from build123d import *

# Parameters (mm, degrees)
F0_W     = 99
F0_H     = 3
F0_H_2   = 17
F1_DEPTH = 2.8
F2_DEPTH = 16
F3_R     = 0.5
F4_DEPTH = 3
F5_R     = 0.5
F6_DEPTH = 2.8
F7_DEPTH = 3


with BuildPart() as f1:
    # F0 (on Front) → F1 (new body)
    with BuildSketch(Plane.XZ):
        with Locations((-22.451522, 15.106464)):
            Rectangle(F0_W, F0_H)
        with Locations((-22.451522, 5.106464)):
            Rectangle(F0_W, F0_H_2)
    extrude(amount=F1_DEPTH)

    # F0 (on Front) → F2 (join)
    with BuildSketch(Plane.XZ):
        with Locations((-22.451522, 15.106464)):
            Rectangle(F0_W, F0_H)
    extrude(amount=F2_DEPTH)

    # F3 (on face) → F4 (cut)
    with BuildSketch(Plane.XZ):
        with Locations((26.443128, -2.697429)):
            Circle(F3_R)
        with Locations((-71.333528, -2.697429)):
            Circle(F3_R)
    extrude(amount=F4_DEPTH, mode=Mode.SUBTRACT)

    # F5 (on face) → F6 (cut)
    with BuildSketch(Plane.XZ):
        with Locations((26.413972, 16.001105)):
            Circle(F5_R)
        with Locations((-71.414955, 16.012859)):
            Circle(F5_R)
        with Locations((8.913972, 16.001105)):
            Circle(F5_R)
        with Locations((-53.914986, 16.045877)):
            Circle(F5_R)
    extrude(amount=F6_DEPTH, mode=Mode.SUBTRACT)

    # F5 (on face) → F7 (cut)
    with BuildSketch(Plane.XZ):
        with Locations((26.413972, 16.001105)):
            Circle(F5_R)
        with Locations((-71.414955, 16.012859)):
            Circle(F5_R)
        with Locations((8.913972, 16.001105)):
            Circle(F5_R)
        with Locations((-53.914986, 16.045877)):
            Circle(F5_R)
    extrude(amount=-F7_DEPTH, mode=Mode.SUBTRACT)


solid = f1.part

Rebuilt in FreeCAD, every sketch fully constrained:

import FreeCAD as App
import Part
import Sketcher
from FreeCAD import Vector
Q = App.Units.Quantity

doc = App.newDocument("Part")
body = doc.addObject("PartDesign::Body", "Body")

sketch1 = body.newObject("Sketcher::SketchObject", "Sketch")
sketch1.AttachmentSupport = (doc.getObject("XZ_Plane"), [""])
sketch1.MapMode = "FlatFace"
sketch1.addGeometry(Part.LineSegment(Vector(-71.951522, 16.606464, 0), Vector(-71.951522, -3.393536, 0)), False)
sketch1.addGeometry(Part.LineSegment(Vector(-71.951522, -3.393536, 0), Vector(27.048478, -3.393536, 0)), False)
sketch1.addGeometry(Part.LineSegment(Vector(27.048478, -3.393536, 0), Vector(27.048478, 16.606464, 0)), False)
sketch1.addGeometry(Part.LineSegment(Vector(27.048478, 16.606464, 0), Vector(-71.951522, 16.606464, 0)), False)
sketch1.addConstraint(Sketcher.Constraint("Coincident", 0, 2, 1, 1))
sketch1.addConstraint(Sketcher.Constraint("Coincident", 1, 2, 2, 1))
sketch1.addConstraint(Sketcher.Constraint("Coincident", 2, 2, 3, 1))
sketch1.addConstraint(Sketcher.Constraint("Coincident", 3, 2, 0, 1))
sketch1.addConstraint(Sketcher.Constraint("Vertical", 0))
sketch1.addConstraint(Sketcher.Constraint("Horizontal", 1))
sketch1.addConstraint(Sketcher.Constraint("Vertical", 2))
sketch1.addConstraint(Sketcher.Constraint("Horizontal", 3))
sketch1.addConstraint(Sketcher.Constraint("DistanceX", 1, 1, 1, 2, Q("99 mm")))
sketch1.addConstraint(Sketcher.Constraint("DistanceY", 0, 2, 0, 1, Q("20 mm")))
sketch1.addConstraint(Sketcher.Constraint("DistanceX", 0, 2, -1, 1, Q("71.951522 mm")))
sketch1.addConstraint(Sketcher.Constraint("DistanceY", 0, 2, -1, 1, Q("3.393536 mm")))
pad1 = body.newObject("PartDesign::Pad", "Pad")
pad1.Profile = sketch1
pad1.Length = 2.8

sketch2 = body.newObject("Sketcher::SketchObject", "Sketch001")
sketch2.AttachmentSupport = (doc.getObject("XZ_Plane"), [""])
sketch2.MapMode = "FlatFace"
sketch2.addGeometry(Part.LineSegment(Vector(-71.951522, 16.606464, 0), Vector(-71.951522, 13.606464, 0)), False)
sketch2.addGeometry(Part.LineSegment(Vector(-71.951522, 13.606464, 0), Vector(27.048478, 13.606464, 0)), False)
sketch2.addGeometry(Part.LineSegment(Vector(27.048478, 13.606464, 0), Vector(27.048478, 16.606464, 0)), False)
sketch2.addGeometry(Part.LineSegment(Vector(27.048478, 16.606464, 0), Vector(-71.951522, 16.606464, 0)), False)
sketch2.addConstraint(Sketcher.Constraint("Coincident", 0, 2, 1, 1))
sketch2.addConstraint(Sketcher.Constraint("Coincident", 1, 2, 2, 1))
sketch2.addConstraint(Sketcher.Constraint("Coincident", 2, 2, 3, 1))
sketch2.addConstraint(Sketcher.Constraint("Coincident", 3, 2, 0, 1))
sketch2.addConstraint(Sketcher.Constraint("Vertical", 0))
sketch2.addConstraint(Sketcher.Constraint("Horizontal", 1))
sketch2.addConstraint(Sketcher.Constraint("Vertical", 2))
sketch2.addConstraint(Sketcher.Constraint("Horizontal", 3))
sketch2.addConstraint(Sketcher.Constraint("DistanceX", 1, 1, 1, 2, Q("99 mm")))
sketch2.addConstraint(Sketcher.Constraint("DistanceY", 0, 2, 0, 1, Q("3 mm")))
sketch2.addConstraint(Sketcher.Constraint("DistanceX", 0, 2, -1, 1, Q("71.951522 mm")))
sketch2.addConstraint(Sketcher.Constraint("DistanceY", -1, 1, 0, 2, Q("13.606464 mm")))
pad2 = body.newObject("PartDesign::Pad", "Pad001")
pad2.Profile = sketch2
pad2.Length = 16

sketch3 = body.newObject("Sketcher::SketchObject", "Sketch002")
sketch3.AttachmentSupport = (doc.getObject("XZ_Plane"), [""])
sketch3.MapMode = "FlatFace"
sketch3.addGeometry(Part.Circle(Vector(26.443128, -2.697429, 0), Vector(0, 0, 1), 0.5), False)
sketch3.addGeometry(Part.Circle(Vector(-71.333528, -2.697429, 0), Vector(0, 0, 1), 0.5), False)
sketch3.addConstraint(Sketcher.Constraint("Equal", 0, 1))
sketch3.addConstraint(Sketcher.Constraint("Horizontal", 0, 3, 1, 3))
sketch3.addConstraint(Sketcher.Constraint("Diameter", 0, Q("1 mm")))
sketch3.addConstraint(Sketcher.Constraint("DistanceX", -1, 1, 0, 3, Q("26.443128 mm")))
sketch3.addConstraint(Sketcher.Constraint("DistanceY", 0, 3, -1, 1, Q("2.697429 mm")))
sketch3.addConstraint(Sketcher.Constraint("DistanceX", 1, 3, -1, 1, Q("71.333528 mm")))
pocket1 = body.newObject("PartDesign::Pocket", "Pocket")
pocket1.Profile = sketch3
pocket1.Length = 3
pocket1.Reversed = True

sketch4 = body.newObject("Sketcher::SketchObject", "Sketch003")
sketch4.AttachmentSupport = (doc.getObject("XZ_Plane"), [""])
sketch4.MapMode = "FlatFace"
sketch4.addGeometry(Part.Circle(Vector(26.413972, 16.001105, 0), Vector(0, 0, 1), 0.5), False)
sketch4.addGeometry(Part.Circle(Vector(-71.414955, 16.012859, 0), Vector(0, 0, 1), 0.5), False)
sketch4.addGeometry(Part.Circle(Vector(8.913972, 16.001105, 0), Vector(0, 0, 1), 0.5), False)
sketch4.addGeometry(Part.Circle(Vector(-53.914986, 16.045877, 0), Vector(0, 0, 1), 0.5), False)
sketch4.addConstraint(Sketcher.Constraint("Equal", 0, 1))
sketch4.addConstraint(Sketcher.Constraint("Equal", 1, 2))
sketch4.addConstraint(Sketcher.Constraint("Equal", 2, 3))
sketch4.addConstraint(Sketcher.Constraint("Horizontal", 0, 3, 2, 3))
sketch4.addConstraint(Sketcher.Constraint("Diameter", 0, Q("1 mm")))
sketch4.addConstraint(Sketcher.Constraint("DistanceX", 2, 3, 0, 3, Q("17.5 mm")))
sketch4.addConstraint(Sketcher.Constraint("DistanceY", -1, 1, 1, 3, Q("16.012859 mm")))
sketch4.addConstraint(Sketcher.Constraint("DistanceX", -1, 1, 2, 3, Q("8.913972 mm")))
sketch4.addConstraint(Sketcher.Constraint("DistanceX", 1, 3, 3, 3, Q("17.499969 mm")))
sketch4.addConstraint(Sketcher.Constraint("DistanceY", 1, 3, 3, 3, Q("0.033018 mm")))
sketch4.addConstraint(Sketcher.Constraint("DistanceX", 3, 3, 0, 3, Q("80.328958 mm")))
sketch4.addConstraint(Sketcher.Constraint("DistanceY", -1, 1, 0, 3, Q("16.001105 mm")))
pocket2 = body.newObject("PartDesign::Pocket", "Pocket001")
pocket2.Profile = sketch4
pocket2.Length = 2.8
pocket2.Reversed = True

sketch5 = body.newObject("Sketcher::SketchObject", "Sketch004")
sketch5.AttachmentSupport = (doc.getObject("XZ_Plane"), [""])
sketch5.MapMode = "FlatFace"
sketch5.addGeometry(Part.Circle(Vector(26.413972, 16.001105, 0), Vector(0, 0, 1), 0.5), False)
sketch5.addGeometry(Part.Circle(Vector(-71.414955, 16.012859, 0), Vector(0, 0, 1), 0.5), False)
sketch5.addGeometry(Part.Circle(Vector(8.913972, 16.001105, 0), Vector(0, 0, 1), 0.5), False)
sketch5.addGeometry(Part.Circle(Vector(-53.914986, 16.045877, 0), Vector(0, 0, 1), 0.5), False)
sketch5.addConstraint(Sketcher.Constraint("Equal", 0, 1))
sketch5.addConstraint(Sketcher.Constraint("Equal", 1, 2))
sketch5.addConstraint(Sketcher.Constraint("Equal", 2, 3))
sketch5.addConstraint(Sketcher.Constraint("Horizontal", 0, 3, 2, 3))
sketch5.addConstraint(Sketcher.Constraint("Diameter", 0, Q("1 mm")))
sketch5.addConstraint(Sketcher.Constraint("DistanceX", 2, 3, 0, 3, Q("17.5 mm")))
sketch5.addConstraint(Sketcher.Constraint("DistanceY", -1, 1, 1, 3, Q("16.012859 mm")))
sketch5.addConstraint(Sketcher.Constraint("DistanceX", -1, 1, 2, 3, Q("8.913972 mm")))
sketch5.addConstraint(Sketcher.Constraint("DistanceX", 1, 3, 3, 3, Q("17.499969 mm")))
sketch5.addConstraint(Sketcher.Constraint("DistanceY", 1, 3, 3, 3, Q("0.033018 mm")))
sketch5.addConstraint(Sketcher.Constraint("DistanceX", 3, 3, 0, 3, Q("80.328958 mm")))
sketch5.addConstraint(Sketcher.Constraint("DistanceY", -1, 1, 0, 3, Q("16.001105 mm")))
pocket3 = body.newObject("PartDesign::Pocket", "Pocket002")
pocket3.Profile = sketch5
pocket3.Length = 3

doc.recompute()
